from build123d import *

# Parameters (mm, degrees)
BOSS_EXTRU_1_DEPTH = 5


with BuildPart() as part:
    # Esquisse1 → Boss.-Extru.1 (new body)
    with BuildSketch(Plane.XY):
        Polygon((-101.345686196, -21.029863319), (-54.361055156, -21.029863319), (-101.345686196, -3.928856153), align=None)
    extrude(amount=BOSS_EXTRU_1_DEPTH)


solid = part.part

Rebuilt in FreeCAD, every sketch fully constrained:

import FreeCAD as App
import Part
import Sketcher
Q = App.Units.Quantity

doc = App.newDocument("Part")
body = doc.addObject("PartDesign::Body", "Body")

# Sketch on XY plane
sketch1 = body.newObject("Sketcher::SketchObject", "Sketch")
sketch1.AttachmentSupport = (doc.getObject("XY_Plane"), [""])
sketch1.MapMode = "FlatFace"
sketch1.addGeometry(Part.LineSegment(App.Vector(-101.345686, -21.029863, 0), App.Vector(-54.361055, -21.029863, 0)), False)
sketch1.addGeometry(Part.LineSegment(App.Vector(-54.361055, -21.029863, 0), App.Vector(-101.345686, -3.928856, 0)), False)
sketch1.addGeometry(Part.LineSegment(App.Vector(-101.345686, -3.928856, 0), App.Vector(-101.345686, -21.029863, 0)), False)
sketch1.addConstraint(Sketcher.Constraint("Coincident", 0, 2, 1, 1))
sketch1.addConstraint(Sketcher.Constraint("Coincident", 1, 2, 2, 1))
sketch1.addConstraint(Sketcher.Constraint("Coincident", 2, 2, 0, 1))
sketch1.addConstraint(Sketcher.Constraint("Horizontal", 0))
sketch1.addConstraint(Sketcher.Constraint("Vertical", 2))
sketch1.addConstraint(Sketcher.Constraint("Angle", 1, Q("160 deg")))
sketch1.addConstraint(Sketcher.Constraint("Distance", 1, Q("50 mm")))
sketch1.addConstraint(Sketcher.Constraint("DistanceX", 0, 2, -1, 1, Q("54.361055 mm")))
sketch1.addConstraint(Sketcher.Constraint("DistanceY", 0, 2, -1, 1, Q("21.029863 mm")))
pad1 = body.newObject("PartDesign::Pad", "Pad")
pad1.Profile = sketch1
pad1.Length = 5

doc.recompute()
